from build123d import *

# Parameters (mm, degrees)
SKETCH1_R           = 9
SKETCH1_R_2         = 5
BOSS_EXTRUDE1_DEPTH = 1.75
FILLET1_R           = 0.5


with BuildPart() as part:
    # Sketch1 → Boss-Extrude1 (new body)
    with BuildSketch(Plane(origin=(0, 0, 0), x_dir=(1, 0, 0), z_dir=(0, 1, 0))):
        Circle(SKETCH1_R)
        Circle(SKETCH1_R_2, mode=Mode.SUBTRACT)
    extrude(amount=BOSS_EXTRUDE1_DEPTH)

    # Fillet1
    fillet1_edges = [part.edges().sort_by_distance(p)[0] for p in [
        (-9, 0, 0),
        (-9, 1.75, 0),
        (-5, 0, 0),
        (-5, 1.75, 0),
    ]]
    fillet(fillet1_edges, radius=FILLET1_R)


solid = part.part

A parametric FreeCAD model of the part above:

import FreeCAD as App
import Part
import Sketcher
from FreeCAD import Vector


def edges_at(feature, points):
    """Names of the edges that pass closest to the given points."""
    edges = feature.Shape.Edges
    near = lambda p: min(range(len(edges)), key=lambda i: edges[i].distToShape(Part.Vertex(*p))[0])
    return sorted({f"Edge{near(p) + 1}" for p in points})

doc = App.newDocument("Part")
params = doc.addObject("Spreadsheet::Sheet", "Params")
for row, (alias, value) in enumerate([
    ("sketch1_diameter", "18 mm"),
    ("sketch1_diameter2", "10 mm"),
    ("pad1_length", "1.75 mm"),
    ("fillet_radius", "0.5 mm"),
], start=1):
    params.set(f"A{row}", alias)
    params.set(f"B{row}", "=" + value)
    params.setAlias(f"B{row}", alias)

body = doc.addObject("PartDesign::Body", "Body")

# Sketch on XZ plane
sketch1 = doc.addObject("Sketcher::SketchObject", "Sketch")
body.addObject(sketch1)
sketch1.AttachmentSupport = (doc.XZ_Plane, [""])
sketch1.MapMode = "FlatFace"
sketch1.addGeometry(Part.Circle(Vector(0, 0, 0), Vector(0, 0, 1), 9), False)
sketch1.addGeometry(Part.Circle(Vector(0, 0, 0), Vector(0, 0, 1), 5), False)
sketch1.addConstraint(Sketcher.Constraint("Coincident", 0, 3, -1, 1))
sketch1.addConstraint(Sketcher.Constraint("Coincident", 1, 3, -1, 1))
sketch1.addConstraint(Sketcher.Constraint("Diameter", 0, 18.0))
sketch1.addConstraint(Sketcher.Constraint("Diameter", 1, 10.0))
sketch1.setExpression("Constraints[2]", "Params.sketch1_diameter")
sketch1.setExpression("Constraints[3]", "Params.sketch1_diameter2")
pad1 = doc.addObject("PartDesign::Pad", "Pad")
body.addObject(pad1)
pad1.Profile = sketch1
pad1.setExpression("Length", "Params.pad1_length")
pad1.Reversed = True
doc.recompute()

fillet = doc.addObject("PartDesign::Fillet", "Fillet")
body.addObject(fillet)
fillet.Base = (pad1, edges_at(pad1, [
    (-9, 0, 0),
    (-9, 1.75, 0),
    (-5, 0, 0),
    (-5, 1.75, 0),
]))
fillet.setExpression("Radius", "Params.fillet_radius")

doc.recompute()
